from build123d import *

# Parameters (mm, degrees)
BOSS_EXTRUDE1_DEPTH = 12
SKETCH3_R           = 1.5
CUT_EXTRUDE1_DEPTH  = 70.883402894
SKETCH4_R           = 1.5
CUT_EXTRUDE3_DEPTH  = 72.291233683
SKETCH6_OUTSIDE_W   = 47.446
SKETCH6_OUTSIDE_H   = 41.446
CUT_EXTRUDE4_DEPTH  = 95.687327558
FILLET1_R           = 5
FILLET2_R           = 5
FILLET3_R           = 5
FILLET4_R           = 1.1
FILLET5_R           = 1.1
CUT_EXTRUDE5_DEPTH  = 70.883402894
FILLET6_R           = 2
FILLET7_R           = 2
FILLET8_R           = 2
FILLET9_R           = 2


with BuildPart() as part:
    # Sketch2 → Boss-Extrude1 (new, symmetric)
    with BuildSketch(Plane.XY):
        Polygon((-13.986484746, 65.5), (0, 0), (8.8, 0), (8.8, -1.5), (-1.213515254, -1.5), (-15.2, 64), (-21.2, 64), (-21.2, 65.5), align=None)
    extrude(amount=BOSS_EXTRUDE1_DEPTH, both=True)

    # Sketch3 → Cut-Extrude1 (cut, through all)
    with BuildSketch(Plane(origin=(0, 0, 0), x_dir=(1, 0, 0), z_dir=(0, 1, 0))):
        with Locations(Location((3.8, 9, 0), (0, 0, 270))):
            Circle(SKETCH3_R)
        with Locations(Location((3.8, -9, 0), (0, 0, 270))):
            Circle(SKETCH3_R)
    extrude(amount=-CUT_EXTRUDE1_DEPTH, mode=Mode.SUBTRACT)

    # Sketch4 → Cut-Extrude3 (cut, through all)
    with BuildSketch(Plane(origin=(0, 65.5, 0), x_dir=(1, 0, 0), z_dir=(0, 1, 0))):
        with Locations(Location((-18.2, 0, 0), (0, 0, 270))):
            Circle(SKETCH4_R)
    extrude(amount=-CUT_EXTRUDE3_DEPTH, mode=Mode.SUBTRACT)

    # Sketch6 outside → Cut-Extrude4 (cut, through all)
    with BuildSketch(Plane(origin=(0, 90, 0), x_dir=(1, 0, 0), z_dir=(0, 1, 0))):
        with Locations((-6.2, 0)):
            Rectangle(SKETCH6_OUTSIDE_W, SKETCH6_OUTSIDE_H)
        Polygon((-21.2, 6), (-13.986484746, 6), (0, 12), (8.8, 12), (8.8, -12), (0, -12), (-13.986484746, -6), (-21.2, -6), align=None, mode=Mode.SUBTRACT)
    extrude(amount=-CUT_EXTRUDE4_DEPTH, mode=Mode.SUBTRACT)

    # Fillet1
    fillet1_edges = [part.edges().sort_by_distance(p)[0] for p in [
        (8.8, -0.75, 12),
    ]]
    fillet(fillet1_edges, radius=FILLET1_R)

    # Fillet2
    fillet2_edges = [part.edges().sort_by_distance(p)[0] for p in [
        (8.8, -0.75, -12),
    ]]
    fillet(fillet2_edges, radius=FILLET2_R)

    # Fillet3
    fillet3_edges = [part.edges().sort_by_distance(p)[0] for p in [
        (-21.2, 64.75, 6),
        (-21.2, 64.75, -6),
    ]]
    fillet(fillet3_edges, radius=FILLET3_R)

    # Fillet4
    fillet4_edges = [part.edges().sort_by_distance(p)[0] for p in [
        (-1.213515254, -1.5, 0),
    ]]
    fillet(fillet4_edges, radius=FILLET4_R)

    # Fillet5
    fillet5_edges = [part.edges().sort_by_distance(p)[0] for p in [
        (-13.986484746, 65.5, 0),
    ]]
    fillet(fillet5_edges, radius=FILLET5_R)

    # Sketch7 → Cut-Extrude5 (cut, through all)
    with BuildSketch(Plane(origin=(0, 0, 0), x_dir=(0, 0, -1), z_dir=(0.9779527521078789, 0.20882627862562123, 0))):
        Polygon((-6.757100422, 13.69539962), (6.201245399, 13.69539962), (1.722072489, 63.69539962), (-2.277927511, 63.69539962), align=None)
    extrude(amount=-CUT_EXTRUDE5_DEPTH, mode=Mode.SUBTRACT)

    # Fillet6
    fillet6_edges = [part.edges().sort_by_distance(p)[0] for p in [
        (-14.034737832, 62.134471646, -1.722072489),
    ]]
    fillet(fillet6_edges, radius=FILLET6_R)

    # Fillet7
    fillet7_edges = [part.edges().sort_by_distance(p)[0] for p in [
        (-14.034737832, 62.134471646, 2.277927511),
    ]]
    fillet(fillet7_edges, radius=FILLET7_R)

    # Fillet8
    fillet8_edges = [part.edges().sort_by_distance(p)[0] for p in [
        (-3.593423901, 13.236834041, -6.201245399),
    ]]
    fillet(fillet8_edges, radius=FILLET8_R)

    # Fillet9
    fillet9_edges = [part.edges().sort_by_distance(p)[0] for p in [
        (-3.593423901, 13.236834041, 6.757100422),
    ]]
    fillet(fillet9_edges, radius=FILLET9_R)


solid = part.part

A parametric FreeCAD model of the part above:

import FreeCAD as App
import Part
import Sketcher
from FreeCAD import Vector
Q = App.Units.Quantity


def edges_at(feature, points):
    """Names of the edges that pass closest to the given points."""
    edges = feature.Shape.Edges
    near = lambda p: min(range(len(edges)), key=lambda i: edges[i].distToShape(Part.Vertex(*p))[0])
    return sorted({f"Edge{near(p) + 1}" for p in points})


def add_polygon(sketch, points):
    """Adds a closed chain of lines whose ends are joined by coincident constraints."""
    first, n = sketch.GeometryCount, len(points)
    for a, b in zip(points, points[1:] + points[:1]):
        sketch.addGeometry(Part.LineSegment(App.Vector(*a, 0), App.Vector(*b, 0)), False)
    for i in range(n):
        sketch.addConstraint(Sketcher.Constraint("Coincident", first + i, 2, first + (i + 1) % n, 1))

doc = App.newDocument("Part")
body = doc.addObject("PartDesign::Body", "Body")

# Sketch on XY plane
sketch1 = doc.addObject("Sketcher::SketchObject", "Sketch")
body.addObject(sketch1)
sketch1.AttachmentSupport = (doc.XY_Plane, [""])
sketch1.MapMode = "FlatFace"
add_polygon(sketch1, [(0, 0), (-14, 65.5), (-21.2, 65.5), (-21.2, 64), (-15.2, 64), (-1.2, -1.5), (8.8, -1.5), (8.8, 0)])  # lines 0-7
sketch1.addConstraint([
    Sketcher.Constraint("Horizontal", 1),
    Sketcher.Constraint("Vertical", 2),
    Sketcher.Constraint("Horizontal", 3),
    Sketcher.Constraint("Horizontal", 5),
    Sketcher.Constraint("Vertical", 6),
    Sketcher.Constraint("Horizontal", 7),
    Sketcher.Constraint("Coincident", 7, 2, -1, 1),
    Sketcher.Constraint("Parallel", 0, 4),
    Sketcher.Constraint("Equal", 2, 6),
    Sketcher.Constraint("DistanceX", 3, 1, 3, 2, Q("6 mm")),
    Sketcher.Constraint("DistanceX", 7, 2, 7, 1, Q("8.8 mm")),
    Sketcher.Constraint("DistanceY", 2, 2, 2, 1, Q("1.5 mm")),
    Sketcher.Constraint("DistanceY", -1, 1, 2, 2, Q("64 mm")),
    Sketcher.Constraint("DistanceX", 3, 2, 5, 2, Q("24 mm")),
    Sketcher.Constraint("Distance", 0, Q("66.976651 mm")),
])
pad1 = doc.addObject("PartDesign::Pad", "Pad")
body.addObject(pad1)
pad1.Profile = sketch1
pad1.Length = 24
pad1.Midplane = True

# Sketch on XZ plane
sketch2 = doc.addObject("Sketcher::SketchObject", "Sketch001")
body.addObject(sketch2)
sketch2.AttachmentSupport = (doc.XZ_Plane, [""])
sketch2.MapMode = "FlatFace"
sketch2.addGeometry([
    Part.Circle(Vector(3.8, -9, 0), Vector(0, 0, 1), 1.5),
    Part.Circle(Vector(3.8, 9, 0), Vector(0, 0, 1), 1.5),
], False)
sketch2.addConstraint([
    Sketcher.Constraint("Equal", 0, 1),
    Sketcher.Constraint("Symmetric", 0, 3, 1, 3, -1),
    Sketcher.Constraint("Diameter", 0, Q("3 mm")),
    Sketcher.Constraint("DistanceY", 0, 3, -1, 1, Q("9 mm")),
    Sketcher.Constraint("DistanceX", -1, 1, 0, 3, Q("3.8 mm")),
])
pocket1 = doc.addObject("PartDesign::Pocket", "Pocket")
body.addObject(pocket1)
pocket1.Profile = sketch2
pocket1.Type = "ThroughAll"
pocket1.Reversed = True

# Sketch on XZ plane
sketch3 = doc.addObject("Sketcher::SketchObject", "Sketch002")
body.addObject(sketch3)
sketch3.AttachmentSupport = (doc.XZ_Plane, [""])
sketch3.MapMode = "FlatFace"
sketch3.AttachmentOffset = App.Placement(Vector(0, 0, -65.5), App.Rotation())
sketch3.addGeometry(Part.Circle(Vector(-18.2, 0, 0), Vector(0, 0, 1), 1.5), False)
sketch3.addConstraint([
    Sketcher.Constraint("PointOnObject", 0, 3, -1),
    Sketcher.Constraint("Diameter", 0, Q("3 mm")),
    Sketcher.Constraint("DistanceX", 0, 3, -1, 1, Q("18.2 mm")),
])
pocket2 = doc.addObject("PartDesign::Pocket", "Pocket001")
body.addObject(pocket2)
pocket2.Profile = sketch3
pocket2.Type = "ThroughAll"
pocket2.Reversed = True

# Sketch on XZ plane
sketch4 = doc.addObject("Sketcher::SketchObject", "Sketch003")
body.addObject(sketch4)
sketch4.AttachmentSupport = (doc.XZ_Plane, [""])
sketch4.MapMode = "FlatFace"
sketch4.AttachmentOffset = App.Placement(Vector(0, 0, -90), App.Rotation())
add_polygon(sketch4, [(-30, -21), (-30, 21), (18, 21), (18, -21)])  # lines 0-3
add_polygon(sketch4, [(-21, 6), (-21, -6), (-14, -6), (0, -12), (9, -12), (9, 12), (0, 12), (-14, 6)])  # lines 4-11
sketch4.addConstraint([
    Sketcher.Constraint("Vertical", 0),
    Sketcher.Constraint("Horizontal", 1),
    Sketcher.Constraint("Vertical", 2),
    Sketcher.Constraint("Horizontal", 3),
    Sketcher.Constraint("Vertical", 4),
    Sketcher.Constraint("Horizontal", 5),
    Sketcher.Constraint("Horizontal", 7),
    Sketcher.Constraint("Vertical", 8),
    Sketcher.Constraint("Horizontal", 9),
    Sketcher.Constraint("Horizontal", 11),
    Sketcher.Constraint("Symmetric", 6, 2, 9, 2, -1, 1),
    Sketcher.Constraint("Symmetric", 5, 2, 10, 2, -1),
    Sketcher.Constraint("PointOnObject", 6, 2, -2),
    Sketcher.Constraint("DistanceY", 4, 2, 4, 1, Q("12 mm")),
    Sketcher.Constraint("DistanceY", 8, 1, 8, 2, Q("24 mm")),
    Sketcher.Constraint("DistanceX", 7, 1, 7, 2, Q("8.8 mm")),
    Sketcher.Constraint("DistanceX", 4, 2, 7, 2, Q("30 mm")),
    Sketcher.Constraint("DistanceX", 1, 1, 1, 2, Q("47.446 mm")),
    Sketcher.Constraint("DistanceY", 0, 1, 0, 2, Q("41.446 mm")),
    Sketcher.Constraint("DistanceX", 0, 2, -1, 1, Q("29.923 mm")),
    Sketcher.Constraint("DistanceY", -1, 1, 0, 2, Q("20.723 mm")),
    Sketcher.Constraint("DistanceX", 5, 1, 5, 2, Q("7.213515 mm")),
])
pocket3 = doc.addObject("PartDesign::Pocket", "Pocket002")
body.addObject(pocket3)
pocket3.Profile = sketch4
pocket3.Type = "ThroughAll"
pocket3.Reversed = True
doc.recompute()

fillet = doc.addObject("PartDesign::Fillet", "Fillet")
body.addObject(fillet)
fillet.Base = (pocket3, edges_at(pocket3, [(8.8, -0.75, 12)]))
fillet.Radius = 5
doc.recompute()

fillet2 = doc.addObject("PartDesign::Fillet", "Fillet001")
body.addObject(fillet2)
fillet2.Base = (fillet, edges_at(fillet, [(8.8, -0.75, -12)]))
fillet2.Radius = 5
doc.recompute()

fillet3 = doc.addObject("PartDesign::Fillet", "Fillet002")
body.addObject(fillet3)
fillet3.Base = (fillet2, edges_at(fillet2, [(-21.2, 64.75, 6), (-21.2, 64.75, -6)]))
fillet3.Radius = 5
doc.recompute()

fillet4 = doc.addObject("PartDesign::Fillet", "Fillet003")
body.addObject(fillet4)
fillet4.Base = (fillet3, edges_at(fillet3, [(-1.214, -1.5, 0)]))
fillet4.Radius = 1.1
doc.recompute()

fillet5 = doc.addObject("PartDesign::Fillet", "Fillet004")
body.addObject(fillet5)
fillet5.Base = (fillet4, edges_at(fillet4, [(-13.986, 65.5, 0)]))
fillet5.Radius = 1.1

# Sketch on an angled plane
sketch5 = doc.addObject("Sketcher::SketchObject", "Sketch004")
body.addObject(sketch5)
sketch5.Placement = App.Placement(Vector(0, 0, 0), App.Rotation(Vector(0, 0, -1), Vector(-0.208826279, 0.977952752, 0), Vector(0.977952752, 0.208826279, 0), "ZXY"))
add_polygon(sketch5, [(-6.8, 13.7), (6.2, 13.7), (1.7, 63.7), (-2.3, 63.7)])  # lines 0-3
sketch5.addConstraint([
    Sketcher.Constraint("Horizontal", 0),
    Sketcher.Constraint("Horizontal", 2),
    Sketcher.Constraint("Equal", 1, 3),
    Sketcher.Constraint("DistanceX", 2, 2, 2, 1, Q("4 mm")),
    Sketcher.Constraint("DistanceY", 0, 2, 1, 2, Q("50 mm")),
    Sketcher.Constraint("DistanceY", -1, 1, 0, 2, Q("13.6954 mm")),
    Sketcher.Constraint("DistanceX", 3, 2, -1, 1, Q("6.7571 mm")),
    Sketcher.Constraint("Distance", 1, Q("50.200229 mm")),
])
pocket4 = doc.addObject("PartDesign::Pocket", "Pocket003")
body.addObject(pocket4)
pocket4.Profile = sketch5
pocket4.Type = "ThroughAll"
doc.recompute()

fillet6 = doc.addObject("PartDesign::Fillet", "Fillet005")
body.addObject(fillet6)
fillet6.Base = (pocket4, edges_at(pocket4, [(-14.035, 62.134, -1.722)]))
fillet6.Radius = 2
doc.recompute()

fillet7 = doc.addObject("PartDesign::Fillet", "Fillet006")
body.addObject(fillet7)
fillet7.Base = (fillet6, edges_at(fillet6, [(-14.035, 62.134, 2.278)]))
fillet7.Radius = 2
doc.recompute()

fillet8 = doc.addObject("PartDesign::Fillet", "Fillet007")
body.addObject(fillet8)
fillet8.Base = (fillet7, edges_at(fillet7, [(-3.593, 13.237, -6.201)]))
fillet8.Radius = 2
doc.recompute()

fillet9 = doc.addObject("PartDesign::Fillet", "Fillet008")
body.addObject(fillet9)
fillet9.Base = (fillet8, edges_at(fillet8, [(-3.593, 13.237, 6.757)]))
fillet9.Radius = 2

doc.recompute()
